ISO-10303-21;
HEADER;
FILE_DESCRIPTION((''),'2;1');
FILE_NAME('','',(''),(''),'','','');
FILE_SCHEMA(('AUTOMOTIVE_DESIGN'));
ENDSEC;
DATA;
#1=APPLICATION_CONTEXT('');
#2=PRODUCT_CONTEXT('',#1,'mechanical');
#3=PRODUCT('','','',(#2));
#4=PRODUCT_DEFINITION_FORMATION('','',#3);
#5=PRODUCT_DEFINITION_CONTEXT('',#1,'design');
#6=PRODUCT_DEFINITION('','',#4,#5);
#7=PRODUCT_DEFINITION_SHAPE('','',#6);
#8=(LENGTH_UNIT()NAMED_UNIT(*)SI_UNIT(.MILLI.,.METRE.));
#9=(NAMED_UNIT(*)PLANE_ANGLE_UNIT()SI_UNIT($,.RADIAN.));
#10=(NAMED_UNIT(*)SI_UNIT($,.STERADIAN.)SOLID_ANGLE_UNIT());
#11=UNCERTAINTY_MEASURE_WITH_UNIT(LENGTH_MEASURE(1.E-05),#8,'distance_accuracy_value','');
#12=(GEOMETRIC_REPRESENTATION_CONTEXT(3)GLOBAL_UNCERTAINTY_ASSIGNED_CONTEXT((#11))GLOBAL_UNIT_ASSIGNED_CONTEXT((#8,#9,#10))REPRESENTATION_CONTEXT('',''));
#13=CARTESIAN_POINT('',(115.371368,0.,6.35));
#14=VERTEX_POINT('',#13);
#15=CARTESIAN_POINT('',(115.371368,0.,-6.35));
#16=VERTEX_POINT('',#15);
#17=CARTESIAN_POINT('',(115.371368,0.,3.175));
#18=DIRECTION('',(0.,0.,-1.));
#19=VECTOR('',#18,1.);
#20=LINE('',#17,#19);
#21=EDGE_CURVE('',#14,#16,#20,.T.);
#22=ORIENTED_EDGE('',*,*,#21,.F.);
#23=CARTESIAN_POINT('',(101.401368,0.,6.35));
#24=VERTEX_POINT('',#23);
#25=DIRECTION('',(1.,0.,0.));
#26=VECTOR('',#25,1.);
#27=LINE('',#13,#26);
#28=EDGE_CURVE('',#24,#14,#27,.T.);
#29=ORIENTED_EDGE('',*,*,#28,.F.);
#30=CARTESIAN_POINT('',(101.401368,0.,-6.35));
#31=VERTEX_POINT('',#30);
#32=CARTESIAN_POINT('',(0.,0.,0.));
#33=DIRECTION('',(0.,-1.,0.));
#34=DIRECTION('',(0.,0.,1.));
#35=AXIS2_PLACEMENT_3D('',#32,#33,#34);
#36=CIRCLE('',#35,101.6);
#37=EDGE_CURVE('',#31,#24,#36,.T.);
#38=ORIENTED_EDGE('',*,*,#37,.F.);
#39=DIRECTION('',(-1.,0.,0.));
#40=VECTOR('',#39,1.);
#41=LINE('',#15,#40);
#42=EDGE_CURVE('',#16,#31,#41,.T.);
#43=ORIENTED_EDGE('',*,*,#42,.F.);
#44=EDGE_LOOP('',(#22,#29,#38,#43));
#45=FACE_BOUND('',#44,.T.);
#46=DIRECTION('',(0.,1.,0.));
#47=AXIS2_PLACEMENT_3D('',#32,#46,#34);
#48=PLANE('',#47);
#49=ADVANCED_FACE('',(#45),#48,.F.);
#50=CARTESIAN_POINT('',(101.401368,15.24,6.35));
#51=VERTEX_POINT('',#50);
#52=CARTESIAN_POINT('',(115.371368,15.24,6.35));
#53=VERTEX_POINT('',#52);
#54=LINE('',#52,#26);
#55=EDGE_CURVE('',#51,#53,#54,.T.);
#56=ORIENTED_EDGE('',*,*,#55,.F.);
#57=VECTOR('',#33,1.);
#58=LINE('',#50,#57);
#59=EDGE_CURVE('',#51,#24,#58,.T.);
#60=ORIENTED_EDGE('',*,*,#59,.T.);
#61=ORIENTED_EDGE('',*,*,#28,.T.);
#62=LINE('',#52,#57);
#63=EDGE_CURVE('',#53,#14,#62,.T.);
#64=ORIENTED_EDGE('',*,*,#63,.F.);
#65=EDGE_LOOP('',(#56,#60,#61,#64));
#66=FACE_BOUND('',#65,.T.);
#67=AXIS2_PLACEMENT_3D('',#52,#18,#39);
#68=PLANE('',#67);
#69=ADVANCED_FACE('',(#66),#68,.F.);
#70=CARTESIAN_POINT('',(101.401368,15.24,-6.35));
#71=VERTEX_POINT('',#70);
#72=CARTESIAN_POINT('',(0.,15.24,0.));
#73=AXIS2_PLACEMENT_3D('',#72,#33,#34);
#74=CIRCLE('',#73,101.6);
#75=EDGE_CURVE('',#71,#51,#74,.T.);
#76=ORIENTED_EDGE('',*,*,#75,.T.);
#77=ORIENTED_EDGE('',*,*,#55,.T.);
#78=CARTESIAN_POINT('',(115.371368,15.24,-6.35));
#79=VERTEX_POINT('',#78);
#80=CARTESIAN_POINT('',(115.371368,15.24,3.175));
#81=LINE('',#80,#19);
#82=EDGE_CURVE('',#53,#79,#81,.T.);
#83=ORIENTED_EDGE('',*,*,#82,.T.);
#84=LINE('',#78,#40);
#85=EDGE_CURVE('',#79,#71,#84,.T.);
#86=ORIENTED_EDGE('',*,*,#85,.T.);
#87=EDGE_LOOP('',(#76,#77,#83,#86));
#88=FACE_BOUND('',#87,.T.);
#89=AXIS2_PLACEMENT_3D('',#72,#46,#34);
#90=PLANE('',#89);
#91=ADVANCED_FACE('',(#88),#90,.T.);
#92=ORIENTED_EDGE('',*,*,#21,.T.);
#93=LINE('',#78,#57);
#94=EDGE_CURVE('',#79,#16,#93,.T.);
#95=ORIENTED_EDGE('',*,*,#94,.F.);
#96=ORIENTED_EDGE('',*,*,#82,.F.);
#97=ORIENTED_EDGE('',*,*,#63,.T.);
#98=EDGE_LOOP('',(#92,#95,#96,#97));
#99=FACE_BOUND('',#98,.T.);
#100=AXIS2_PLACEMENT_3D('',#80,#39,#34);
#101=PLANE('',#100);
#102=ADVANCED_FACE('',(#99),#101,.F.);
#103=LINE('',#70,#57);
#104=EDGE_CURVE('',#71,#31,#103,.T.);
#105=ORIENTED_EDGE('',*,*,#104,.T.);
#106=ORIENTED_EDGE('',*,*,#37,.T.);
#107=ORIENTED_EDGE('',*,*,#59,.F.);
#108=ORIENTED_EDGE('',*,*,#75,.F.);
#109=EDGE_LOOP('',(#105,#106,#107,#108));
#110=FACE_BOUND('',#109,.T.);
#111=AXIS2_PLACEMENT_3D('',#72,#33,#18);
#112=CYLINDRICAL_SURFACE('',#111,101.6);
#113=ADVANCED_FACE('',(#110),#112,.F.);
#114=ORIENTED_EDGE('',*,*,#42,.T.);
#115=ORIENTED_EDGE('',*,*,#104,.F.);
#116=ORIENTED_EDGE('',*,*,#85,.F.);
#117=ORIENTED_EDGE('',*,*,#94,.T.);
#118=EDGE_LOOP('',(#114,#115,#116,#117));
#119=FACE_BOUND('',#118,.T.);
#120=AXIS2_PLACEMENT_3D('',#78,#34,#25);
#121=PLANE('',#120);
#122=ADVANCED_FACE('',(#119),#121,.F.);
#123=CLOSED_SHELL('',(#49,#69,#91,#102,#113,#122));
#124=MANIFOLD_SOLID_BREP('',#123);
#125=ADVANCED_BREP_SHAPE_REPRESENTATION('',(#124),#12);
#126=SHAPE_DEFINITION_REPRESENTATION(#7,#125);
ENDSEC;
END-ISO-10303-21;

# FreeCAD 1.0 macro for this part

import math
import FreeCAD as App
import Part
import Sketcher
from FreeCAD import Vector
Q = App.Units.Quantity

doc = App.newDocument("Part")
body = doc.addObject("PartDesign::Body", "Body")

# Sketch on XZ plane
sketch1 = body.newObject("Sketcher::SketchObject", "Sketch")
sketch1.AttachmentSupport = (doc.getObject("XZ_Plane"), [""])
sketch1.MapMode = "FlatFace"
sketch1.addGeometry([
    Part.LineSegment(Vector(115, -6, 0), Vector(101, -6, 0)),
    Part.ArcOfCircle(Part.Circle(Vector(0, 0, 0), Vector(0, 0, 1), 102), math.radians(-3.58), math.radians(3.58)),
    Part.LineSegment(Vector(101, 6, 0), Vector(115, 6, 0)),
    Part.LineSegment(Vector(115, 6, 0), Vector(115, -6, 0)),
], False)
sketch1.addConstraint([
    Sketcher.Constraint("Coincident", 0, 2, 1, 1),
    Sketcher.Constraint("Coincident", 1, 2, 2, 1),
    Sketcher.Constraint("Coincident", 2, 2, 3, 1),
    Sketcher.Constraint("Coincident", 3, 2, 0, 1),
    Sketcher.Constraint("Horizontal", 0),
    Sketcher.Constraint("Horizontal", 2),
    Sketcher.Constraint("Vertical", 3),
    Sketcher.Constraint("Coincident", 1, 3, -1, 1),
    Sketcher.Constraint("Vertical", 0, 2, 1, 2),
    Sketcher.Constraint("Radius", 1, Q("4 in")),
    Sketcher.Constraint("DistanceY", 3, 2, 3, 1, Q("0.5 in")),
    Sketcher.Constraint("DistanceX", 0, 2, 0, 1, Q("0.55 in")),
])
pad1 = body.newObject("PartDesign::Pad", "Pad")
pad1.Profile = sketch1
pad1.Length = Q("0.6 in")
pad1.Reversed = True

doc.recompute()
